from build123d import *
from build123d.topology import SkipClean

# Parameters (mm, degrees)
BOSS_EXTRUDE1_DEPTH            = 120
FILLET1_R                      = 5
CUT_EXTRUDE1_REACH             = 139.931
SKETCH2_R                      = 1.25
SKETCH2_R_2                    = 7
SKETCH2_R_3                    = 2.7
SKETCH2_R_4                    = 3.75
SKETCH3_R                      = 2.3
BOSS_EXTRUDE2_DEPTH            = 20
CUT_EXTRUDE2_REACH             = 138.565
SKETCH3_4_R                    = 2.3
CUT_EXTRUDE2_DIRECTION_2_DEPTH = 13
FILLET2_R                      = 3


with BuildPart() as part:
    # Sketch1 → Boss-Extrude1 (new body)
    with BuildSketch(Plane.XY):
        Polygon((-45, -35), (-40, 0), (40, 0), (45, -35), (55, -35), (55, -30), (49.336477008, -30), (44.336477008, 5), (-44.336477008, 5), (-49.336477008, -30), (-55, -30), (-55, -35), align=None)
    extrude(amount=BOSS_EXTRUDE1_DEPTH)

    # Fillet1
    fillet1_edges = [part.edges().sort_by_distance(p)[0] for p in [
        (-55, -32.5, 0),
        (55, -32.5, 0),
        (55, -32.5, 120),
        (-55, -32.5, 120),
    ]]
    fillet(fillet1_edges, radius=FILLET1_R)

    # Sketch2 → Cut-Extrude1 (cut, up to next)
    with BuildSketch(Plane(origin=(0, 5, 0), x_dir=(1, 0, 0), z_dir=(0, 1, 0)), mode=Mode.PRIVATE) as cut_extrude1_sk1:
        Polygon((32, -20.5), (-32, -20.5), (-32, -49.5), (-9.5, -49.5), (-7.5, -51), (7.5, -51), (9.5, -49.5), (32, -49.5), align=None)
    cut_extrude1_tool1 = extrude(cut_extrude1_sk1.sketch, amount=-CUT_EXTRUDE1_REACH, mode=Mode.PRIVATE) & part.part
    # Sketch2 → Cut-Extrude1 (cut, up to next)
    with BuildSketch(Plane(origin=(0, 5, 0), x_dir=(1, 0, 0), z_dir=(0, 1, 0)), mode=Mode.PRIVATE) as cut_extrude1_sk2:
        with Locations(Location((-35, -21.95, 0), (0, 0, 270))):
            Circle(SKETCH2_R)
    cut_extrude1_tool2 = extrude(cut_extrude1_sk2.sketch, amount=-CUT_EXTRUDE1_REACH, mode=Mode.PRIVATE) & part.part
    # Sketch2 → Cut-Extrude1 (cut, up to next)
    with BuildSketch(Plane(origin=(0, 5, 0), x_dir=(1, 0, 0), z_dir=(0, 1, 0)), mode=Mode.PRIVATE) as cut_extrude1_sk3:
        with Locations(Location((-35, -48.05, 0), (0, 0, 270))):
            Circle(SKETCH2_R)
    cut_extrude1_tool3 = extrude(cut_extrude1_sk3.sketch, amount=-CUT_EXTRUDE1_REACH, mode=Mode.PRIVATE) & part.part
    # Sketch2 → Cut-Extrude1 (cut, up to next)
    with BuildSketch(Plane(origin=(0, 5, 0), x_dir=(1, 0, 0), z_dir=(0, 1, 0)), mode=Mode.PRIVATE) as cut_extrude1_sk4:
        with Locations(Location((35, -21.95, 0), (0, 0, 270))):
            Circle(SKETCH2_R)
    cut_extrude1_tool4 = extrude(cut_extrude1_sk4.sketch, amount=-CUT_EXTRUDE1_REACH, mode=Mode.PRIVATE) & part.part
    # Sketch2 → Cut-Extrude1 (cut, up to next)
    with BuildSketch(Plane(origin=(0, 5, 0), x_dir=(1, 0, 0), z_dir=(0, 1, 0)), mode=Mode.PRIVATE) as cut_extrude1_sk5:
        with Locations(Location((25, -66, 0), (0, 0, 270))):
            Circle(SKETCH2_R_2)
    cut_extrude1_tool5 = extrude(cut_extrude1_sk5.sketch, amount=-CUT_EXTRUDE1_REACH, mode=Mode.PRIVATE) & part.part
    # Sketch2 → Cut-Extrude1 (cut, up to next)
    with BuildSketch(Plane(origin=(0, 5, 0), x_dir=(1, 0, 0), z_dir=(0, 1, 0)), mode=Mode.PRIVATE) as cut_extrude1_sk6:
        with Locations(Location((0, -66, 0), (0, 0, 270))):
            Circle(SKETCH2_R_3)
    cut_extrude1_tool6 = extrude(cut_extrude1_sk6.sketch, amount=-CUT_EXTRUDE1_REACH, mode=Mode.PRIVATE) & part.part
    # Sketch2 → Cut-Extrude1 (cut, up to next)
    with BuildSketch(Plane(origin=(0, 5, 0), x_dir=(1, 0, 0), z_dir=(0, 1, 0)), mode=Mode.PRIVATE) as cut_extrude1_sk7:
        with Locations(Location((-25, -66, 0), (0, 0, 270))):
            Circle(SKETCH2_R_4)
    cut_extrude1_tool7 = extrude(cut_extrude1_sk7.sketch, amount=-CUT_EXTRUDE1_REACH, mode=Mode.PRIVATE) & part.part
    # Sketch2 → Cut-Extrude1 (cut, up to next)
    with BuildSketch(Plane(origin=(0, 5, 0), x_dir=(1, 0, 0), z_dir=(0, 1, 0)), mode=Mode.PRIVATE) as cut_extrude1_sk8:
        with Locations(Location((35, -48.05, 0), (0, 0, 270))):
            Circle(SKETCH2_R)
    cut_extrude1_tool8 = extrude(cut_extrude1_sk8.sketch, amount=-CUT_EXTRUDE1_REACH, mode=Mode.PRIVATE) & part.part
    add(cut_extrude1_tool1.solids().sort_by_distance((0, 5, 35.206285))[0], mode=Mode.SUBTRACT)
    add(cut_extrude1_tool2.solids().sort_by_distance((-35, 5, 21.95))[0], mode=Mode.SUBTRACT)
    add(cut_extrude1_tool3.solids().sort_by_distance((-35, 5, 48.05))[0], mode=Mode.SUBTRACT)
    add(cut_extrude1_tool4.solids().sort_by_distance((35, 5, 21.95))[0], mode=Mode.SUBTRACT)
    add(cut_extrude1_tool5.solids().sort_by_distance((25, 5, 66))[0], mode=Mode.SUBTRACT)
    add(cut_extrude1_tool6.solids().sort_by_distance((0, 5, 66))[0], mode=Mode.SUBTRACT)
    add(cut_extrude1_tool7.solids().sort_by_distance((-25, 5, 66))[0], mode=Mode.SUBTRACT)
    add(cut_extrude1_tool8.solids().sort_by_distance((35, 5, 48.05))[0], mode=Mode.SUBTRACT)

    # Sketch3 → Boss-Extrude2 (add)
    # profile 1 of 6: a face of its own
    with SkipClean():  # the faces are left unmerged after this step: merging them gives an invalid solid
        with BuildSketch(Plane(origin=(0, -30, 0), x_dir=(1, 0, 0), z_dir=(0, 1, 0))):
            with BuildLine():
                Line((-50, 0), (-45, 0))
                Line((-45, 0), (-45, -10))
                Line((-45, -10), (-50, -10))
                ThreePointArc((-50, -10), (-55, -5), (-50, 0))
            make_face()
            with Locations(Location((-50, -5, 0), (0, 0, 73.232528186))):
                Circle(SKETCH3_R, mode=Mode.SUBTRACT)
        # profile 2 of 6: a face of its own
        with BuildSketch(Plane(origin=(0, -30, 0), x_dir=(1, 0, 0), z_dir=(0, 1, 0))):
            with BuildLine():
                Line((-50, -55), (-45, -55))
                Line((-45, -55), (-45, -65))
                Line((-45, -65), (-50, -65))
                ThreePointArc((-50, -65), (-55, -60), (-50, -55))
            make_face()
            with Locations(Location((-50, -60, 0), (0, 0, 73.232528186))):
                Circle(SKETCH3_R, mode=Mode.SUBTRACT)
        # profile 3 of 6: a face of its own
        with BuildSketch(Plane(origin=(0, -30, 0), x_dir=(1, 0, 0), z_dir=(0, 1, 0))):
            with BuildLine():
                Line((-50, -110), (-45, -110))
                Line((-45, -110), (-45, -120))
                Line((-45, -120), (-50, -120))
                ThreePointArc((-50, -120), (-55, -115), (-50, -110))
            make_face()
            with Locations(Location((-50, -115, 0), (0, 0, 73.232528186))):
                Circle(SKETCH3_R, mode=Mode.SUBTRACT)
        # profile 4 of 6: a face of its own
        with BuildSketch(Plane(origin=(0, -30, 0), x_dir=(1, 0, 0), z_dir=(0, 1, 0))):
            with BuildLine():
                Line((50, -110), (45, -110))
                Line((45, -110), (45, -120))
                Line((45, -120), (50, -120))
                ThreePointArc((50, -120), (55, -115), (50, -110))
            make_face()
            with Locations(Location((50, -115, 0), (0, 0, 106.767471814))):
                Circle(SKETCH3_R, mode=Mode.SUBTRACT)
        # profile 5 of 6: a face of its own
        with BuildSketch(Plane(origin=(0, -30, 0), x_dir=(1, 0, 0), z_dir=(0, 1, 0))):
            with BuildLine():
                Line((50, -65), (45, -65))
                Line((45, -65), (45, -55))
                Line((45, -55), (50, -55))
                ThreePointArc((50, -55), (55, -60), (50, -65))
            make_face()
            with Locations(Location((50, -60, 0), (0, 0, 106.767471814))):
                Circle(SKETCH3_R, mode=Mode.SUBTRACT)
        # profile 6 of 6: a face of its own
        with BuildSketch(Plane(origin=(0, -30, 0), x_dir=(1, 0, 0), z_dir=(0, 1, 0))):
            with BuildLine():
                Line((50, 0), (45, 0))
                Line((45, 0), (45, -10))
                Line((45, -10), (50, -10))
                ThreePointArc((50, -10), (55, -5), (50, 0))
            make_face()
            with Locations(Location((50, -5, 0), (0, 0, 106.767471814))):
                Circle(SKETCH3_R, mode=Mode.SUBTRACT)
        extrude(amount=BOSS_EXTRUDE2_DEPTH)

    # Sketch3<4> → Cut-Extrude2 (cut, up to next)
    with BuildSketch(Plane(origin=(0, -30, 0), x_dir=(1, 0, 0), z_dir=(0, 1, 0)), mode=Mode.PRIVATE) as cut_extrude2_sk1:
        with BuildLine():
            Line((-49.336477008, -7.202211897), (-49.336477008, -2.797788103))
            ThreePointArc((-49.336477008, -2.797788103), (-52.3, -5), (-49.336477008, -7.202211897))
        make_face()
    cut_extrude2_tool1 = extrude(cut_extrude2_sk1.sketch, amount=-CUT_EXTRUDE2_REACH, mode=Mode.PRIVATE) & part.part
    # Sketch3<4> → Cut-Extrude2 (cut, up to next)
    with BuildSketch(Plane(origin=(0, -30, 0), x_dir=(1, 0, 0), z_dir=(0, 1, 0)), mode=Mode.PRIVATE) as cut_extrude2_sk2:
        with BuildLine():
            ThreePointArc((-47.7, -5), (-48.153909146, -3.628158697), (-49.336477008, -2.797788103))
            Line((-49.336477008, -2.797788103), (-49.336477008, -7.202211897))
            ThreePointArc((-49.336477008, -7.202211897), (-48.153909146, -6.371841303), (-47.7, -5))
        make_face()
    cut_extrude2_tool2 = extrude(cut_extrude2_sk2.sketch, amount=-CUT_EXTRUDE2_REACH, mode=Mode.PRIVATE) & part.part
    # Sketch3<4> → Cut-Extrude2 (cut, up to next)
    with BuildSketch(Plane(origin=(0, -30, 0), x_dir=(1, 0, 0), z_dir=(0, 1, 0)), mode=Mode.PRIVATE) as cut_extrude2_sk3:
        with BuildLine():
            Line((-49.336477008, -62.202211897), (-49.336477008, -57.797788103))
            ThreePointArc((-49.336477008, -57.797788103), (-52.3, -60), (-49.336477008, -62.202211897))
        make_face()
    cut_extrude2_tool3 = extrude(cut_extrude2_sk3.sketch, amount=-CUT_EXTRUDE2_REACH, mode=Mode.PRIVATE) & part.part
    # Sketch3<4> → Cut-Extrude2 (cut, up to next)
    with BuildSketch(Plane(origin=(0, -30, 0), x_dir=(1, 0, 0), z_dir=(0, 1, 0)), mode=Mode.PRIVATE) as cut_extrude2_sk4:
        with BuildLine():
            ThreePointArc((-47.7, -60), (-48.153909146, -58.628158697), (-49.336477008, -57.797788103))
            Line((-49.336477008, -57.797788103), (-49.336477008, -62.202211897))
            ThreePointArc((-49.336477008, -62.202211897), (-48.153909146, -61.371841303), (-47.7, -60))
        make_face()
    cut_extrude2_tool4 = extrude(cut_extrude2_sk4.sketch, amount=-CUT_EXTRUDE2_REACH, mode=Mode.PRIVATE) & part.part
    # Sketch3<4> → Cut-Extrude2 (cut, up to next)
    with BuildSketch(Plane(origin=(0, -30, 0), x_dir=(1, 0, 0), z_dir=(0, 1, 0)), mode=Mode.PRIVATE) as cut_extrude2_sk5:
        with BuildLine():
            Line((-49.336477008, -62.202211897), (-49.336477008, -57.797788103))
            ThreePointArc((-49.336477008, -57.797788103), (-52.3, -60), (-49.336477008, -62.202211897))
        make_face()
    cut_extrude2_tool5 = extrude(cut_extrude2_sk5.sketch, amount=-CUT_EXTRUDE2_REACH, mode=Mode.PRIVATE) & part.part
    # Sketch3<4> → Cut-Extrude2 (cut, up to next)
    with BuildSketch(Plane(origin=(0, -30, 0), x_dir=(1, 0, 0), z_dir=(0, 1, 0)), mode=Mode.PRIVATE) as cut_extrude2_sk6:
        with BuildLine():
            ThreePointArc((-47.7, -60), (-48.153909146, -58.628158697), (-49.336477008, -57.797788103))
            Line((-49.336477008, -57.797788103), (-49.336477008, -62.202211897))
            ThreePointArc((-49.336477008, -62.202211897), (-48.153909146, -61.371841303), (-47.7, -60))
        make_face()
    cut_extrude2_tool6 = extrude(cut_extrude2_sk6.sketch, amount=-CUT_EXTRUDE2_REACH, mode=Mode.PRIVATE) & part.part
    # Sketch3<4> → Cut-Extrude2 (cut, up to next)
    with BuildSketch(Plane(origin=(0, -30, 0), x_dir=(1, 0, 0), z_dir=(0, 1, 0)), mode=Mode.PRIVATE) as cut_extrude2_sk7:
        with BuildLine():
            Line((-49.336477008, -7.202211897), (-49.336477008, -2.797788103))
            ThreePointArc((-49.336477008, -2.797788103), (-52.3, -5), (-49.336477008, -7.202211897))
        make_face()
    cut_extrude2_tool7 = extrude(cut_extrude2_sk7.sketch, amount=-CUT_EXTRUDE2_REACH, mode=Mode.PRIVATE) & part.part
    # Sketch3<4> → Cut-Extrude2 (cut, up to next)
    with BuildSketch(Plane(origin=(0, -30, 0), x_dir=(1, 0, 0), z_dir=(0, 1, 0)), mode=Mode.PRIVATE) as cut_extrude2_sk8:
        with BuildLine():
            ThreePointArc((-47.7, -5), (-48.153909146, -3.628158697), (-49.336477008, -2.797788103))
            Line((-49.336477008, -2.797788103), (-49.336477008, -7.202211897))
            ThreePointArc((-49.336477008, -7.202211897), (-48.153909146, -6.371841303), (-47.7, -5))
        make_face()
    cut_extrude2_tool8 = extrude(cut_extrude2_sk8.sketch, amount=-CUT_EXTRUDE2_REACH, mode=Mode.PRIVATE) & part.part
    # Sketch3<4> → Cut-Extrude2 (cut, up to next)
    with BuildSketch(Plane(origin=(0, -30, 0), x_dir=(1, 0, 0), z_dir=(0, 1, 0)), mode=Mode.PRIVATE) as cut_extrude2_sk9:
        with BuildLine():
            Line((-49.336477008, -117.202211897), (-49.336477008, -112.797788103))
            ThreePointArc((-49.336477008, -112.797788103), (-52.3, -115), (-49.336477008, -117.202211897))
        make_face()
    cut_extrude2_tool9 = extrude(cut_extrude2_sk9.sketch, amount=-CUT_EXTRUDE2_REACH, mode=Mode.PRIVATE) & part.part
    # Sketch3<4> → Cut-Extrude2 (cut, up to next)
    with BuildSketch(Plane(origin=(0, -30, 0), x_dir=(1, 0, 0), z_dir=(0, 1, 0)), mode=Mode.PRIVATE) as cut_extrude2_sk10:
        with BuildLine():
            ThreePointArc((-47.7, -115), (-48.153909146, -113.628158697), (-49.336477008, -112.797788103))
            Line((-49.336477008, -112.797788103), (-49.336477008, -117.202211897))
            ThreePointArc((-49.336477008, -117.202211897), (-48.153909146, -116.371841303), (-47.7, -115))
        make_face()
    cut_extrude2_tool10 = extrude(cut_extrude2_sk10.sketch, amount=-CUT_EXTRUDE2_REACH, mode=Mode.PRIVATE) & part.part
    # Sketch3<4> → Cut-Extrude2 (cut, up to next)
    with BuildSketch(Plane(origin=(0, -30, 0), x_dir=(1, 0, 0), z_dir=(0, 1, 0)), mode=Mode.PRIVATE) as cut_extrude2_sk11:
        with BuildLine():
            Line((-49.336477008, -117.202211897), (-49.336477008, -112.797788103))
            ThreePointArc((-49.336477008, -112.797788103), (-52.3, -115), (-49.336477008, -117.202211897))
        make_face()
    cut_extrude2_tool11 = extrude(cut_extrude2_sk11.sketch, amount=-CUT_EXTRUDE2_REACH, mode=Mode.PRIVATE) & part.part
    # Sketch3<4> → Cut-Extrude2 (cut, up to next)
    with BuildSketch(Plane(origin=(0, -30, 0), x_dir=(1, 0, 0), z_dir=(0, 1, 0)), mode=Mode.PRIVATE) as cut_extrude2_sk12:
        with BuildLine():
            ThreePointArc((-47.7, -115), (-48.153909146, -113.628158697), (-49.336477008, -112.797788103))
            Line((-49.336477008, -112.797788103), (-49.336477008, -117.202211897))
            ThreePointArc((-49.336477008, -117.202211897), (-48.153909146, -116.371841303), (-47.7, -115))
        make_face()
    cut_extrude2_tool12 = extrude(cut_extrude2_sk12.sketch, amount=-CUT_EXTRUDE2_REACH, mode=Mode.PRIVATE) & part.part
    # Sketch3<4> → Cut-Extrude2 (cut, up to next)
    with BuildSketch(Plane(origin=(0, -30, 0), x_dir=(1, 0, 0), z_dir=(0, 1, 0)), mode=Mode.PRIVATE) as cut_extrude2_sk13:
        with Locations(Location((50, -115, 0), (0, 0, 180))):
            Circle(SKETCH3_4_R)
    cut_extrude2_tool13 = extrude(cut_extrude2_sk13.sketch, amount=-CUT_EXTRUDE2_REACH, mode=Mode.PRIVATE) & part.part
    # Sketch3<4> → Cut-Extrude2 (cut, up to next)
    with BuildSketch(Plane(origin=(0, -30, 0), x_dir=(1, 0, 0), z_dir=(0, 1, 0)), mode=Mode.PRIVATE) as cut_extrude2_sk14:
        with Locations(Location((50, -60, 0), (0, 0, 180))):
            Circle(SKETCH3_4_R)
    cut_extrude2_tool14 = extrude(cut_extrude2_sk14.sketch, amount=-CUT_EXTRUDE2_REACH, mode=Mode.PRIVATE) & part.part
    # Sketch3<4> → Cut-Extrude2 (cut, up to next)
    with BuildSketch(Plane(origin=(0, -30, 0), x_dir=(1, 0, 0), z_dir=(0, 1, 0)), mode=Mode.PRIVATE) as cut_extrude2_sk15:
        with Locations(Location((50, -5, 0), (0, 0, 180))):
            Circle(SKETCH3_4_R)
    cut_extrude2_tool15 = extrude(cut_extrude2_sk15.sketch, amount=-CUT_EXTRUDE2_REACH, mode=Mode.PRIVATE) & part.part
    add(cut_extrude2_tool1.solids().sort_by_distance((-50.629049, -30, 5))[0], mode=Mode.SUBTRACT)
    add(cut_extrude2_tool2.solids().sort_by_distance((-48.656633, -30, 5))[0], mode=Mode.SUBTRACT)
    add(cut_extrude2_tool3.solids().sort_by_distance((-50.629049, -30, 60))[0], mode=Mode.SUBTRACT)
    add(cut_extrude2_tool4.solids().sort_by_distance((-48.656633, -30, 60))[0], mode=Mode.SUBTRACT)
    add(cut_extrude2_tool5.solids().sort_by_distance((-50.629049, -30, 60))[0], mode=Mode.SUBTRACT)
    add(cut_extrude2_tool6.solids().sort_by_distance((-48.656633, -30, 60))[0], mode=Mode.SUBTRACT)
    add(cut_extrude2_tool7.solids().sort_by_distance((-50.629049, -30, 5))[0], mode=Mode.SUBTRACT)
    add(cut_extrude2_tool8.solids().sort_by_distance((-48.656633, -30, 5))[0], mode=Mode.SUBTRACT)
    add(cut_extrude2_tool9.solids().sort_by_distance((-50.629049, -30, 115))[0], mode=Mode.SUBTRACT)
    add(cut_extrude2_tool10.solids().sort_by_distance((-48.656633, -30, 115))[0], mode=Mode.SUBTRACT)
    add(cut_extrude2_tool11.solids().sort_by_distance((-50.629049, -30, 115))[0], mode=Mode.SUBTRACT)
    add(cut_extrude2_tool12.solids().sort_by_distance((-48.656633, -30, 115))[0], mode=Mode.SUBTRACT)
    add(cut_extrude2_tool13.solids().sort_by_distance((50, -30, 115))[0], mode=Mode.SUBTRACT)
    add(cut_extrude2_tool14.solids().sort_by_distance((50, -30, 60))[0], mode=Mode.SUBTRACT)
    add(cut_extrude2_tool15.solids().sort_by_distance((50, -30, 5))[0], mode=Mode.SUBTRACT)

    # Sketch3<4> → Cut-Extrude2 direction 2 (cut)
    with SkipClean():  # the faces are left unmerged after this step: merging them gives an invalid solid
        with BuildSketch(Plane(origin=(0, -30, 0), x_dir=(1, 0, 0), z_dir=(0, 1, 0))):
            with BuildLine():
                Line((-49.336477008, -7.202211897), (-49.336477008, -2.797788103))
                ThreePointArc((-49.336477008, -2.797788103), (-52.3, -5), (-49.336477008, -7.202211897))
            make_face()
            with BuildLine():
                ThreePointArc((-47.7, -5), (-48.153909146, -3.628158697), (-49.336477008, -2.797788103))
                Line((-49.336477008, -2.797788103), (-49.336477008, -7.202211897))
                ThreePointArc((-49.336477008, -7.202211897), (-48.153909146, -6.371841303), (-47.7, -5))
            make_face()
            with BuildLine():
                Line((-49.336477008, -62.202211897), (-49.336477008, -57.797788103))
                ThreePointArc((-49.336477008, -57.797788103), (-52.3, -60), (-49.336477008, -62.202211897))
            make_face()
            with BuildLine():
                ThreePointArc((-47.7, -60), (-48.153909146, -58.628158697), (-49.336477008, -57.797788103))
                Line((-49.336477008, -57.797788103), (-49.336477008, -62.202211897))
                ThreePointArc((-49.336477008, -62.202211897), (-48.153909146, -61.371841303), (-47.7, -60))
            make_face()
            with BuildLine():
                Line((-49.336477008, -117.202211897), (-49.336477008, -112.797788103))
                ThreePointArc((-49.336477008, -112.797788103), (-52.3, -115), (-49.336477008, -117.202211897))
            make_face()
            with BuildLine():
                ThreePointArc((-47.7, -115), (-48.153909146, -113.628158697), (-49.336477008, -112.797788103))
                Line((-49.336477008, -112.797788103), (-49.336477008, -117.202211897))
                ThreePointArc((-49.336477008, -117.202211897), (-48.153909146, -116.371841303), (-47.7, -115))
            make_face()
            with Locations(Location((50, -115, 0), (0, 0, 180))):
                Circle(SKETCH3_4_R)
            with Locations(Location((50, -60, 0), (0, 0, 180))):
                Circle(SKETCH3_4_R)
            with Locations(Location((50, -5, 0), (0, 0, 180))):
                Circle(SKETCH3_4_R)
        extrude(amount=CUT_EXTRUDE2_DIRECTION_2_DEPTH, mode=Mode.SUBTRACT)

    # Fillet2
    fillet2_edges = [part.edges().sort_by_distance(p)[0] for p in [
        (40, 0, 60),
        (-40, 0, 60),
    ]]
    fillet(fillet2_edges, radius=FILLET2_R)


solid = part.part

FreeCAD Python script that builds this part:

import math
import FreeCAD as App
import Part
import Sketcher
from FreeCAD import Vector
Q = App.Units.Quantity


def edges_at(feature, points):
    """Names of the edges that pass closest to the given points."""
    edges = feature.Shape.Edges
    near = lambda p: min(range(len(edges)), key=lambda i: edges[i].distToShape(Part.Vertex(*p))[0])
    return sorted({f"Edge{near(p) + 1}" for p in points})


def add_polygon(sketch, points):
    """Adds a closed chain of lines whose ends are joined by coincident constraints."""
    first, n = sketch.GeometryCount, len(points)
    for a, b in zip(points, points[1:] + points[:1]):
        sketch.addGeometry(Part.LineSegment(App.Vector(*a, 0), App.Vector(*b, 0)), False)
    for i in range(n):
        sketch.addConstraint(Sketcher.Constraint("Coincident", first + i, 2, first + (i + 1) % n, 1))

doc = App.newDocument("Part")
body = doc.addObject("PartDesign::Body", "Body")

sketch1 = body.newObject("Sketcher::SketchObject", "Sketch")
sketch1.AttachmentSupport = (doc.getObject("XY_Plane"), [""])
sketch1.MapMode = "FlatFace"
add_polygon(sketch1, [(-45, -35), (-40, 0), (40, 0), (45, -35), (55, -35), (55, -30), (49, -30), (44, 5), (-44, 5), (-49, -30), (-55, -30), (-55, -35)])
sketch1.addConstraint([
    Sketcher.Constraint("Horizontal", 1),
    Sketcher.Constraint("Horizontal", 3),
    Sketcher.Constraint("Vertical", 4),
    Sketcher.Constraint("Horizontal", 5),
    Sketcher.Constraint("Horizontal", 7),
    Sketcher.Constraint("Horizontal", 9),
    Sketcher.Constraint("Vertical", 10),
    Sketcher.Constraint("Horizontal", 11),
    Sketcher.Constraint("Symmetric", 0, 2, 1, 2, -1, 1),
    Sketcher.Constraint("Symmetric", 5, 2, 8, 2, -2),
    Sketcher.Constraint("Symmetric", 3, 2, 10, 2, -2),
    Sketcher.Constraint("Parallel", 2, 6),
    Sketcher.Constraint("Parallel", 0, 8),
    Sketcher.Constraint("Equal", 3, 11),
    Sketcher.Constraint("Equal", 2, 6),
    Sketcher.Constraint("DistanceX", 1, 1, 1, 2, Q("80 mm")),
    Sketcher.Constraint("DistanceX", 3, 1, 3, 2, Q("10 mm")),
    Sketcher.Constraint("DistanceY", 4, 1, 4, 2, Q("5 mm")),
    Sketcher.Constraint("DistanceX", -1, 1, 2, 2, Q("45 mm")),
    Sketcher.Constraint("DistanceY", 2, 2, -1, 1, Q("35 mm")),
    Sketcher.Constraint("DistanceX", 5, 2, 5, 1, Q("5.663523 mm")),
])
pad1 = body.newObject("PartDesign::Pad", "Pad")
pad1.Profile = sketch1
pad1.Length = 120
doc.recompute()

fillet = body.newObject("PartDesign::Fillet", "Fillet")
fillet.Base = (pad1, edges_at(pad1, [
    (-55, -32.5, 0),
    (55, -32.5, 0),
    (55, -32.5, 120),
    (-55, -32.5, 120),
]))
fillet.Radius = 5

sketch2 = body.newObject("Sketcher::SketchObject", "Sketch001")
sketch2.AttachmentSupport = (doc.getObject("XZ_Plane"), [""])
sketch2.MapMode = "FlatFace"
sketch2.AttachmentOffset = App.Placement(Vector(0, 0, -5), App.Rotation())
add_polygon(sketch2, [(32, 20.5), (-32, 20.5), (-32, 49.5), (-9.5, 49.5), (-7.5, 51), (7.5, 51), (9.5, 49.5), (32, 49.5)])
sketch2.addConstraint([
    Sketcher.Constraint("Horizontal", 0),
    Sketcher.Constraint("Vertical", 1),
    Sketcher.Constraint("Horizontal", 2),
    Sketcher.Constraint("Horizontal", 4),
    Sketcher.Constraint("Horizontal", 6),
    Sketcher.Constraint("Vertical", 7),
    Sketcher.Constraint("Symmetric", 2, 2, 5, 2, -2),
    Sketcher.Constraint("Equal", 2, 6),
    Sketcher.Constraint("Equal", 3, 5),
    Sketcher.Constraint("DistanceX", 0, 2, 0, 1, Q("64 mm")),
    Sketcher.Constraint("DistanceX", 4, 1, 4, 2, Q("15 mm")),
    Sketcher.Constraint("DistanceY", 1, 1, 1, 2, Q("29 mm")),
    Sketcher.Constraint("DistanceX", 2, 1, 2, 2, Q("22.5 mm")),
    Sketcher.Constraint("DistanceY", -1, 1, 3, 2, Q("51 mm")),
    Sketcher.Constraint("Distance", 3, Q("2.5 mm")),
])
pocket1 = body.newObject("PartDesign::Pocket", "Pocket")
pocket1.Profile = sketch2
pocket1.Type = "UpToFirst"
pocket1.Reversed = True

sketch3 = body.newObject("Sketcher::SketchObject", "Sketch002")
sketch3.AttachmentSupport = (doc.getObject("XZ_Plane"), [""])
sketch3.MapMode = "FlatFace"
sketch3.AttachmentOffset = App.Placement(Vector(0, 0, -5), App.Rotation())
sketch3.addGeometry(Part.Circle(Vector(-35, 21.9, 0), Vector(0, 0, 1), 1.2), False)
sketch3.addConstraint([
    Sketcher.Constraint("Diameter", 0, Q("2.5 mm")),
    Sketcher.Constraint("DistanceX", 0, 3, -1, 1, Q("35 mm")),
    Sketcher.Constraint("DistanceY", -1, 1, 0, 3, Q("21.95 mm")),
])
pocket2 = body.newObject("PartDesign::Pocket", "Pocket001")
pocket2.Profile = sketch3
pocket2.Type = "UpToFirst"
pocket2.Reversed = True

sketch4 = body.newObject("Sketcher::SketchObject", "Sketch003")
sketch4.AttachmentSupport = (doc.getObject("XZ_Plane"), [""])
sketch4.MapMode = "FlatFace"
sketch4.AttachmentOffset = App.Placement(Vector(0, 0, -5), App.Rotation())
sketch4.addGeometry(Part.Circle(Vector(-35, 48, 0), Vector(0, 0, 1), 1.2), False)
sketch4.addConstraint([
    Sketcher.Constraint("Diameter", 0, Q("2.5 mm")),
    Sketcher.Constraint("DistanceX", 0, 3, -1, 1, Q("35 mm")),
    Sketcher.Constraint("DistanceY", -1, 1, 0, 3, Q("48.05 mm")),
])
pocket3 = body.newObject("PartDesign::Pocket", "Pocket002")
pocket3.Profile = sketch4
pocket3.Type = "UpToFirst"
pocket3.Reversed = True

sketch5 = body.newObject("Sketcher::SketchObject", "Sketch004")
sketch5.AttachmentSupport = (doc.getObject("XZ_Plane"), [""])
sketch5.MapMode = "FlatFace"
sketch5.AttachmentOffset = App.Placement(Vector(0, 0, -5), App.Rotation())
sketch5.addGeometry(Part.Circle(Vector(35, 21.9, 0), Vector(0, 0, 1), 1.2), False)
sketch5.addConstraint([
    Sketcher.Constraint("Diameter", 0, Q("2.5 mm")),
    Sketcher.Constraint("DistanceX", -1, 1, 0, 3, Q("35 mm")),
    Sketcher.Constraint("DistanceY", -1, 1, 0, 3, Q("21.95 mm")),
])
pocket4 = body.newObject("PartDesign::Pocket", "Pocket003")
pocket4.Profile = sketch5
pocket4.Type = "UpToFirst"
pocket4.Reversed = True

sketch6 = body.newObject("Sketcher::SketchObject", "Sketch005")
sketch6.AttachmentSupport = (doc.getObject("XZ_Plane"), [""])
sketch6.MapMode = "FlatFace"
sketch6.AttachmentOffset = App.Placement(Vector(0, 0, -5), App.Rotation())
sketch6.addGeometry(Part.Circle(Vector(25, 66, 0), Vector(0, 0, 1), 7), False)
sketch6.addConstraint([
    Sketcher.Constraint("Diameter", 0, Q("14 mm")),
    Sketcher.Constraint("DistanceX", -1, 1, 0, 3, Q("25 mm")),
    Sketcher.Constraint("DistanceY", -1, 1, 0, 3, Q("66 mm")),
])
pocket5 = body.newObject("PartDesign::Pocket", "Pocket004")
pocket5.Profile = sketch6
pocket5.Type = "UpToFirst"
pocket5.Reversed = True

sketch7 = body.newObject("Sketcher::SketchObject", "Sketch006")
sketch7.AttachmentSupport = (doc.getObject("XZ_Plane"), [""])
sketch7.MapMode = "FlatFace"
sketch7.AttachmentOffset = App.Placement(Vector(0, 0, -5), App.Rotation())
sketch7.addGeometry(Part.Circle(Vector(0, 66, 0), Vector(0, 0, 1), 2.7), False)
sketch7.addConstraint([
    Sketcher.Constraint("PointOnObject", 0, 3, -2),
    Sketcher.Constraint("Diameter", 0, Q("5.4 mm")),
    Sketcher.Constraint("DistanceY", -1, 1, 0, 3, Q("66 mm")),
])
pocket6 = body.newObject("PartDesign::Pocket", "Pocket005")
pocket6.Profile = sketch7
pocket6.Type = "UpToFirst"
pocket6.Reversed = True

sketch8 = body.newObject("Sketcher::SketchObject", "Sketch007")
sketch8.AttachmentSupport = (doc.getObject("XZ_Plane"), [""])
sketch8.MapMode = "FlatFace"
sketch8.AttachmentOffset = App.Placement(Vector(0, 0, -5), App.Rotation())
sketch8.addGeometry(Part.Circle(Vector(-25, 66, 0), Vector(0, 0, 1), 3.8), False)
sketch8.addConstraint([
    Sketcher.Constraint("Diameter", 0, Q("7.5 mm")),
    Sketcher.Constraint("DistanceX", 0, 3, -1, 1, Q("25 mm")),
    Sketcher.Constraint("DistanceY", -1, 1, 0, 3, Q("66 mm")),
])
pocket7 = body.newObject("PartDesign::Pocket", "Pocket006")
pocket7.Profile = sketch8
pocket7.Type = "UpToFirst"
pocket7.Reversed = True

sketch9 = body.newObject("Sketcher::SketchObject", "Sketch008")
sketch9.AttachmentSupport = (doc.getObject("XZ_Plane"), [""])
sketch9.MapMode = "FlatFace"
sketch9.AttachmentOffset = App.Placement(Vector(0, 0, -5), App.Rotation())
sketch9.addGeometry(Part.Circle(Vector(35, 48, 0), Vector(0, 0, 1), 1.2), False)
sketch9.addConstraint([
    Sketcher.Constraint("Diameter", 0, Q("2.5 mm")),
    Sketcher.Constraint("DistanceX", -1, 1, 0, 3, Q("35 mm")),
    Sketcher.Constraint("DistanceY", -1, 1, 0, 3, Q("48.05 mm")),
])
pocket8 = body.newObject("PartDesign::Pocket", "Pocket007")
pocket8.Profile = sketch9
pocket8.Type = "UpToFirst"
pocket8.Reversed = True

sketch10 = body.newObject("Sketcher::SketchObject", "Sketch009")
sketch10.AttachmentSupport = (doc.getObject("XZ_Plane"), [""])
sketch10.MapMode = "FlatFace"
sketch10.AttachmentOffset = App.Placement(Vector(0, 0, 30), App.Rotation())
sketch10.addGeometry([
    Part.LineSegment(Vector(-45, 0, 0), Vector(-50, 0, 0)),
    Part.ArcOfCircle(Part.Circle(Vector(-50, 5, 0), Vector(0, 0, 1), 5), math.radians(90), math.radians(270)),
    Part.LineSegment(Vector(-50, 10, 0), Vector(-45, 10, 0)),
    Part.LineSegment(Vector(-45, 10, 0), Vector(-45, 0, 0)),
    Part.Circle(Vector(-50, 5, 0), Vector(0, 0, 1), 2.3),
    Part.LineSegment(Vector(-45, 55, 0), Vector(-50, 55, 0)),
    Part.ArcOfCircle(Part.Circle(Vector(-50, 60, 0), Vector(0, 0, 1), 5), math.radians(90), math.radians(270)),
    Part.LineSegment(Vector(-50, 65, 0), Vector(-45, 65, 0)),
    Part.LineSegment(Vector(-45, 65, 0), Vector(-45, 55, 0)),
    Part.Circle(Vector(-50, 60, 0), Vector(0, 0, 1), 2.3),
    Part.LineSegment(Vector(-45, 110, 0), Vector(-50, 110, 0)),
    Part.ArcOfCircle(Part.Circle(Vector(-50, 115, 0), Vector(0, 0, 1), 5), math.radians(90), math.radians(270)),
    Part.LineSegment(Vector(-50, 120, 0), Vector(-45, 120, 0)),
    Part.LineSegment(Vector(-45, 120, 0), Vector(-45, 110, 0)),
    Part.Circle(Vector(-50, 115, 0), Vector(0, 0, 1), 2.3),
    Part.LineSegment(Vector(50, 110, 0), Vector(45, 110, 0)),
    Part.LineSegment(Vector(45, 110, 0), Vector(45, 120, 0)),
    Part.LineSegment(Vector(45, 120, 0), Vector(50, 120, 0)),
    Part.ArcOfCircle(Part.Circle(Vector(50, 115, 0), Vector(0, 0, 1), 5), math.radians(-90), math.radians(90)),
    Part.Circle(Vector(50, 115, 0), Vector(0, 0, 1), 2.3),
    Part.LineSegment(Vector(45, 65, 0), Vector(50, 65, 0)),
    Part.ArcOfCircle(Part.Circle(Vector(50, 60, 0), Vector(0, 0, 1), 5), math.radians(-90), math.radians(90)),
    Part.LineSegment(Vector(50, 55, 0), Vector(45, 55, 0)),
    Part.LineSegment(Vector(45, 55, 0), Vector(45, 65, 0)),
    Part.Circle(Vector(50, 60, 0), Vector(0, 0, 1), 2.3),
    Part.LineSegment(Vector(50, 0, 0), Vector(45, 0, 0)),
    Part.LineSegment(Vector(45, 0, 0), Vector(45, 10, 0)),
    Part.LineSegment(Vector(45, 10, 0), Vector(50, 10, 0)),
    Part.ArcOfCircle(Part.Circle(Vector(50, 5, 0), Vector(0, 0, 1), 5), math.radians(-90), math.radians(90)),
    Part.Circle(Vector(50, 5, 0), Vector(0, 0, 1), 2.3),
], False)
sketch10.addConstraint([
    Sketcher.Constraint("Tangent", 0, 2, 1, 2),
    Sketcher.Constraint("Tangent", 1, 1, 2, 1),
    Sketcher.Constraint("Coincident", 2, 2, 3, 1),
    Sketcher.Constraint("Coincident", 3, 2, 0, 1),
    Sketcher.Constraint("Tangent", 5, 2, 6, 2),
    Sketcher.Constraint("Tangent", 6, 1, 7, 1),
    Sketcher.Constraint("Coincident", 7, 2, 8, 1),
    Sketcher.Constraint("Coincident", 8, 2, 5, 1),
    Sketcher.Constraint("Tangent", 10, 2, 11, 2),
    Sketcher.Constraint("Tangent", 11, 1, 12, 1),
    Sketcher.Constraint("Coincident", 12, 2, 13, 1),
    Sketcher.Constraint("Coincident", 13, 2, 10, 1),
    Sketcher.Constraint("Coincident", 15, 2, 16, 1),
    Sketcher.Constraint("Coincident", 16, 2, 17, 1),
    Sketcher.Constraint("Tangent", 17, 2, 18, 2),
    Sketcher.Constraint("Tangent", 18, 1, 15, 1),
    Sketcher.Constraint("Tangent", 20, 2, 21, 2),
    Sketcher.Constraint("Tangent", 21, 1, 22, 1),
    Sketcher.Constraint("Coincident", 22, 2, 23, 1),
    Sketcher.Constraint("Coincident", 23, 2, 20, 1),
    Sketcher.Constraint("Coincident", 25, 2, 26, 1),
    Sketcher.Constraint("Coincident", 26, 2, 27, 1),
    Sketcher.Constraint("Tangent", 27, 2, 28, 2),
    Sketcher.Constraint("Tangent", 28, 1, 25, 1),
    Sketcher.Constraint("Horizontal", 0),
    Sketcher.Constraint("Horizontal", 2),
    Sketcher.Constraint("Vertical", 3),
    Sketcher.Constraint("Horizontal", 5),
    Sketcher.Constraint("Horizontal", 7),
    Sketcher.Constraint("Vertical", 8),
    Sketcher.Constraint("Horizontal", 10),
    Sketcher.Constraint("Horizontal", 12),
    Sketcher.Constraint("Vertical", 13),
    Sketcher.Constraint("Horizontal", 15),
    Sketcher.Constraint("Vertical", 16),
    Sketcher.Constraint("Horizontal", 17),
    Sketcher.Constraint("Horizontal", 20),
    Sketcher.Constraint("Horizontal", 22),
    Sketcher.Constraint("Vertical", 23),
    Sketcher.Constraint("Horizontal", 25),
    Sketcher.Constraint("Vertical", 26),
    Sketcher.Constraint("Horizontal", 27),
    Sketcher.Constraint("Coincident", 4, 3, 1, 3),
    Sketcher.Constraint("Coincident", 9, 3, 6, 3),
    Sketcher.Constraint("Coincident", 14, 3, 11, 3),
    Sketcher.Constraint("Coincident", 19, 3, 18, 3),
    Sketcher.Constraint("Coincident", 24, 3, 21, 3),
    Sketcher.Constraint("Coincident", 29, 3, 28, 3),
    Sketcher.Constraint("Equal", 1, 6),
    Sketcher.Constraint("Equal", 4, 9),
    Sketcher.Constraint("Equal", 6, 11),
    Sketcher.Constraint("Equal", 9, 14),
    Sketcher.Constraint("Equal", 11, 18),
    Sketcher.Constraint("Equal", 14, 19),
    Sketcher.Constraint("Equal", 18, 21),
    Sketcher.Constraint("Equal", 19, 24),
    Sketcher.Constraint("Equal", 21, 28),
    Sketcher.Constraint("Equal", 24, 29),
    Sketcher.Constraint("Symmetric", 3, 2, 25, 2, -1, 1),
    Sketcher.Constraint("Symmetric", 11, 3, 18, 3, -2),
    Sketcher.Constraint("Symmetric", 6, 3, 21, 3, -2),
    Sketcher.Constraint("Symmetric", 1, 3, 28, 3, -2),
    Sketcher.Constraint("Vertical", 4, 3, 6, 3),
    Sketcher.Constraint("Vertical", 9, 3, 11, 3),
    Sketcher.Constraint("Vertical", 3, 2, 7, 2),
    Sketcher.Constraint("Vertical", 8, 2, 12, 2),
    Sketcher.Constraint("Vertical", 16, 2, 22, 2),
    Sketcher.Constraint("Vertical", 23, 2, 25, 2),
    Sketcher.Constraint("Radius", 1, Q("5 mm")),
    Sketcher.Constraint("Diameter", 4, Q("4.6 mm")),
    Sketcher.Constraint("DistanceX", 0, 2, 0, 1, Q("5 mm")),
    Sketcher.Constraint("DistanceX", 1, 3, -1, 1, Q("50 mm")),
    Sketcher.Constraint("DistanceY", -1, 1, 6, 3, Q("60 mm")),
    Sketcher.Constraint("DistanceY", -1, 1, 11, 3, Q("115 mm")),
])
pad2 = body.newObject("PartDesign::Pad", "Pad001")
pad2.Profile = sketch10
pad2.Length = 20
pad2.Reversed = True

sketch11 = body.newObject("Sketcher::SketchObject", "Sketch010")
sketch11.AttachmentSupport = (doc.getObject("XZ_Plane"), [""])
sketch11.MapMode = "FlatFace"
sketch11.AttachmentOffset = App.Placement(Vector(0, 0, 30), App.Rotation())
sketch11.addGeometry([
    Part.LineSegment(Vector(-49.3, 7.2, 0), Vector(-49.3, 2.8, 0)),
    Part.ArcOfCircle(Part.Circle(Vector(-50, 5, 0), Vector(0, 0, 1), 2.3), math.radians(73), math.radians(287)),
], False)
sketch11.addConstraint([
    Sketcher.Constraint("Coincident", 0, 1, 1, 1),
    Sketcher.Constraint("Coincident", 1, 2, 0, 2),
    Sketcher.Constraint("Vertical", 0),
    Sketcher.Constraint("Radius", 1, Q("2.3 mm")),
    Sketcher.Constraint("DistanceX", 1, 3, -1, 1, Q("50 mm")),
    Sketcher.Constraint("DistanceY", -1, 1, 1, 3, Q("5 mm")),
    Sketcher.Constraint("DistanceY", 0, 2, 0, 1, Q("4.404424 mm")),
])
pocket9 = body.newObject("PartDesign::Pocket", "Pocket008")
pocket9.Profile = sketch11
pocket9.Type = "UpToFirst"
pocket9.Reversed = True

sketch12 = body.newObject("Sketcher::SketchObject", "Sketch011")
sketch12.AttachmentSupport = (doc.getObject("XZ_Plane"), [""])
sketch12.MapMode = "FlatFace"
sketch12.AttachmentOffset = App.Placement(Vector(0, 0, 30), App.Rotation())
sketch12.addGeometry([
    Part.ArcOfCircle(Part.Circle(Vector(-50, 5, 0), Vector(0, 0, 1), 2.3), math.radians(-73), math.radians(0)),
    Part.LineSegment(Vector(-49.3, 2.8, 0), Vector(-49.3, 7.2, 0)),
    Part.ArcOfCircle(Part.Circle(Vector(-50, 5, 0), Vector(0, 0, 1), 2.3), math.radians(0), math.radians(73)),
], False)
sketch12.addConstraint([
    Sketcher.Constraint("Coincident", 0, 1, 1, 1),
    Sketcher.Constraint("Coincident", 1, 2, 2, 2),
    Sketcher.Constraint("Tangent", 2, 1, 0, 2),
    Sketcher.Constraint("Vertical", 1),
    Sketcher.Constraint("Equal", 0, 2),
    Sketcher.Constraint("Horizontal", 0, 3, 2, 1),
    Sketcher.Constraint("Radius", 0, Q("2.3 mm")),
    Sketcher.Constraint("DistanceX", 0, 3, -1, 1, Q("50 mm")),
    Sketcher.Constraint("DistanceY", -1, 1, 0, 3, Q("5 mm")),
    Sketcher.Constraint("DistanceY", 1, 1, 1, 2, Q("4.404424 mm")),
])
pocket10 = body.newObject("PartDesign::Pocket", "Pocket009")
pocket10.Profile = sketch12
pocket10.Type = "UpToFirst"
pocket10.Reversed = True

sketch13 = body.newObject("Sketcher::SketchObject", "Sketch012")
sketch13.AttachmentSupport = (doc.getObject("XZ_Plane"), [""])
sketch13.MapMode = "FlatFace"
sketch13.AttachmentOffset = App.Placement(Vector(0, 0, 30), App.Rotation())
sketch13.addGeometry([
    Part.LineSegment(Vector(-49.3, 62.2, 0), Vector(-49.3, 57.8, 0)),
    Part.ArcOfCircle(Part.Circle(Vector(-50, 60, 0), Vector(0, 0, 1), 2.3), math.radians(73), math.radians(287)),
], False)
sketch13.addConstraint([
    Sketcher.Constraint("Coincident", 0, 1, 1, 1),
    Sketcher.Constraint("Coincident", 1, 2, 0, 2),
    Sketcher.Constraint("Vertical", 0),
    Sketcher.Constraint("Radius", 1, Q("2.3 mm")),
    Sketcher.Constraint("DistanceX", 1, 3, -1, 1, Q("50 mm")),
    Sketcher.Constraint("DistanceY", -1, 1, 1, 3, Q("60 mm")),
    Sketcher.Constraint("DistanceY", 0, 2, 0, 1, Q("4.404424 mm")),
])
pocket11 = body.newObject("PartDesign::Pocket", "Pocket010")
pocket11.Profile = sketch13
pocket11.Type = "UpToFirst"
pocket11.Reversed = True

sketch14 = body.newObject("Sketcher::SketchObject", "Sketch013")
sketch14.AttachmentSupport = (doc.getObject("XZ_Plane"), [""])
sketch14.MapMode = "FlatFace"
sketch14.AttachmentOffset = App.Placement(Vector(0, 0, 30), App.Rotation())
sketch14.addGeometry([
    Part.ArcOfCircle(Part.Circle(Vector(-50, 60, 0), Vector(0, 0, 1), 2.3), math.radians(-73), math.radians(0)),
    Part.LineSegment(Vector(-49.3, 57.8, 0), Vector(-49.3, 62.2, 0)),
    Part.ArcOfCircle(Part.Circle(Vector(-50, 60, 0), Vector(0, 0, 1), 2.3), math.radians(0), math.radians(73)),
], False)
sketch14.addConstraint([
    Sketcher.Constraint("Coincident", 0, 1, 1, 1),
    Sketcher.Constraint("Coincident", 1, 2, 2, 2),
    Sketcher.Constraint("Tangent", 2, 1, 0, 2),
    Sketcher.Constraint("Vertical", 1),
    Sketcher.Constraint("Equal", 0, 2),
    Sketcher.Constraint("Horizontal", 0, 3, 2, 1),
    Sketcher.Constraint("Radius", 0, Q("2.3 mm")),
    Sketcher.Constraint("DistanceX", 0, 3, -1, 1, Q("50 mm")),
    Sketcher.Constraint("DistanceY", -1, 1, 0, 3, Q("60 mm")),
    Sketcher.Constraint("DistanceY", 1, 1, 1, 2, Q("4.404424 mm")),
])
pocket12 = body.newObject("PartDesign::Pocket", "Pocket011")
pocket12.Profile = sketch14
pocket12.Type = "UpToFirst"
pocket12.Reversed = True

sketch15 = body.newObject("Sketcher::SketchObject", "Sketch014")
sketch15.AttachmentSupport = (doc.getObject("XZ_Plane"), [""])
sketch15.MapMode = "FlatFace"
sketch15.AttachmentOffset = App.Placement(Vector(0, 0, 30), App.Rotation())
sketch15.addGeometry([
    Part.LineSegment(Vector(-49.3, 62.2, 0), Vector(-49.3, 57.8, 0)),
    Part.ArcOfCircle(Part.Circle(Vector(-50, 60, 0), Vector(0, 0, 1), 2.3), math.radians(73), math.radians(287)),
], False)
sketch15.addConstraint([
    Sketcher.Constraint("Coincident", 0, 1, 1, 1),
    Sketcher.Constraint("Coincident", 1, 2, 0, 2),
    Sketcher.Constraint("Vertical", 0),
    Sketcher.Constraint("Radius", 1, Q("2.3 mm")),
    Sketcher.Constraint("DistanceX", 1, 3, -1, 1, Q("50 mm")),
    Sketcher.Constraint("DistanceY", -1, 1, 1, 3, Q("60 mm")),
    Sketcher.Constraint("DistanceY", 0, 2, 0, 1, Q("4.404424 mm")),
])
pocket13 = body.newObject("PartDesign::Pocket", "Pocket012")
pocket13.Profile = sketch15
pocket13.Length = 5
pocket13.Reversed = True

sketch16 = body.newObject("Sketcher::SketchObject", "Sketch015")
sketch16.AttachmentSupport = (doc.getObject("XZ_Plane"), [""])
sketch16.MapMode = "FlatFace"
sketch16.AttachmentOffset = App.Placement(Vector(0, 0, 30), App.Rotation())
sketch16.addGeometry([
    Part.ArcOfCircle(Part.Circle(Vector(-50, 60, 0), Vector(0, 0, 1), 2.3), math.radians(-73), math.radians(0)),
    Part.LineSegment(Vector(-49.3, 57.8, 0), Vector(-49.3, 62.2, 0)),
    Part.ArcOfCircle(Part.Circle(Vector(-50, 60, 0), Vector(0, 0, 1), 2.3), math.radians(0), math.radians(73)),
], False)
sketch16.addConstraint([
    Sketcher.Constraint("Coincident", 0, 1, 1, 1),
    Sketcher.Constraint("Coincident", 1, 2, 2, 2),
    Sketcher.Constraint("Tangent", 2, 1, 0, 2),
    Sketcher.Constraint("Vertical", 1),
    Sketcher.Constraint("Equal", 0, 2),
    Sketcher.Constraint("Horizontal", 0, 3, 2, 1),
    Sketcher.Constraint("Radius", 0, Q("2.3 mm")),
    Sketcher.Constraint("DistanceX", 0, 3, -1, 1, Q("50 mm")),
    Sketcher.Constraint("DistanceY", -1, 1, 0, 3, Q("60 mm")),
    Sketcher.Constraint("DistanceY", 1, 1, 1, 2, Q("4.404424 mm")),
])
pocket14 = body.newObject("PartDesign::Pocket", "Pocket013")
pocket14.Profile = sketch16
pocket14.Length = 5
pocket14.Reversed = True

sketch17 = body.newObject("Sketcher::SketchObject", "Sketch016")
sketch17.AttachmentSupport = (doc.getObject("XZ_Plane"), [""])
sketch17.MapMode = "FlatFace"
sketch17.AttachmentOffset = App.Placement(Vector(0, 0, 30), App.Rotation())
sketch17.addGeometry([
    Part.LineSegment(Vector(-49.3, 7.2, 0), Vector(-49.3, 2.8, 0)),
    Part.ArcOfCircle(Part.Circle(Vector(-50, 5, 0), Vector(0, 0, 1), 2.3), math.radians(73), math.radians(287)),
], False)
sketch17.addConstraint([
    Sketcher.Constraint("Coincident", 0, 1, 1, 1),
    Sketcher.Constraint("Coincident", 1, 2, 0, 2),
    Sketcher.Constraint("Vertical", 0),
    Sketcher.Constraint("Radius", 1, Q("2.3 mm")),
    Sketcher.Constraint("DistanceX", 1, 3, -1, 1, Q("50 mm")),
    Sketcher.Constraint("DistanceY", -1, 1, 1, 3, Q("5 mm")),
    Sketcher.Constraint("DistanceY", 0, 2, 0, 1, Q("4.404424 mm")),
])
pocket15 = body.newObject("PartDesign::Pocket", "Pocket014")
pocket15.Profile = sketch17
pocket15.Length = 5
pocket15.Reversed = True

sketch18 = body.newObject("Sketcher::SketchObject", "Sketch017")
sketch18.AttachmentSupport = (doc.getObject("XZ_Plane"), [""])
sketch18.MapMode = "FlatFace"
sketch18.AttachmentOffset = App.Placement(Vector(0, 0, 30), App.Rotation())
sketch18.addGeometry([
    Part.ArcOfCircle(Part.Circle(Vector(-50, 5, 0), Vector(0, 0, 1), 2.3), math.radians(-73), math.radians(0)),
    Part.LineSegment(Vector(-49.3, 2.8, 0), Vector(-49.3, 7.2, 0)),
    Part.ArcOfCircle(Part.Circle(Vector(-50, 5, 0), Vector(0, 0, 1), 2.3), math.radians(0), math.radians(73)),
], False)
sketch18.addConstraint([
    Sketcher.Constraint("Coincident", 0, 1, 1, 1),
    Sketcher.Constraint("Coincident", 1, 2, 2, 2),
    Sketcher.Constraint("Tangent", 2, 1, 0, 2),
    Sketcher.Constraint("Vertical", 1),
    Sketcher.Constraint("Equal", 0, 2),
    Sketcher.Constraint("Horizontal", 0, 3, 2, 1),
    Sketcher.Constraint("Radius", 0, Q("2.3 mm")),
    Sketcher.Constraint("DistanceX", 0, 3, -1, 1, Q("50 mm")),
    Sketcher.Constraint("DistanceY", -1, 1, 0, 3, Q("5 mm")),
    Sketcher.Constraint("DistanceY", 1, 1, 1, 2, Q("4.404424 mm")),
])
pocket16 = body.newObject("PartDesign::Pocket", "Pocket015")
pocket16.Profile = sketch18
pocket16.Length = 5
pocket16.Reversed = True

sketch19 = body.newObject("Sketcher::SketchObject", "Sketch018")
sketch19.AttachmentSupport = (doc.getObject("XZ_Plane"), [""])
sketch19.MapMode = "FlatFace"
sketch19.AttachmentOffset = App.Placement(Vector(0, 0, 30), App.Rotation())
sketch19.addGeometry([
    Part.LineSegment(Vector(-49.3, 117.2, 0), Vector(-49.3, 112.8, 0)),
    Part.ArcOfCircle(Part.Circle(Vector(-50, 115, 0), Vector(0, 0, 1), 2.3), math.radians(73), math.radians(287)),
], False)
sketch19.addConstraint([
    Sketcher.Constraint("Coincident", 0, 1, 1, 1),
    Sketcher.Constraint("Coincident", 1, 2, 0, 2),
    Sketcher.Constraint("Vertical", 0),
    Sketcher.Constraint("Radius", 1, Q("2.3 mm")),
    Sketcher.Constraint("DistanceX", 1, 3, -1, 1, Q("50 mm")),
    Sketcher.Constraint("DistanceY", -1, 1, 1, 3, Q("115 mm")),
    Sketcher.Constraint("DistanceY", 0, 2, 0, 1, Q("4.404424 mm")),
])
pocket17 = body.newObject("PartDesign::Pocket", "Pocket016")
pocket17.Profile = sketch19
pocket17.Type = "UpToFirst"
pocket17.Reversed = True

sketch20 = body.newObject("Sketcher::SketchObject", "Sketch019")
sketch20.AttachmentSupport = (doc.getObject("XZ_Plane"), [""])
sketch20.MapMode = "FlatFace"
sketch20.AttachmentOffset = App.Placement(Vector(0, 0, 30), App.Rotation())
sketch20.addGeometry([
    Part.ArcOfCircle(Part.Circle(Vector(-50, 115, 0), Vector(0, 0, 1), 2.3), math.radians(-73), math.radians(0)),
    Part.LineSegment(Vector(-49.3, 112.8, 0), Vector(-49.3, 117.2, 0)),
    Part.ArcOfCircle(Part.Circle(Vector(-50, 115, 0), Vector(0, 0, 1), 2.3), math.radians(0), math.radians(73)),
], False)
sketch20.addConstraint([
    Sketcher.Constraint("Coincident", 0, 1, 1, 1),
    Sketcher.Constraint("Coincident", 1, 2, 2, 2),
    Sketcher.Constraint("Tangent", 2, 1, 0, 2),
    Sketcher.Constraint("Vertical", 1),
    Sketcher.Constraint("Equal", 0, 2),
    Sketcher.Constraint("Horizontal", 0, 3, 2, 1),
    Sketcher.Constraint("Radius", 0, Q("2.3 mm")),
    Sketcher.Constraint("DistanceX", 0, 3, -1, 1, Q("50 mm")),
    Sketcher.Constraint("DistanceY", -1, 1, 0, 3, Q("115 mm")),
    Sketcher.Constraint("DistanceY", 1, 1, 1, 2, Q("4.404424 mm")),
])
pocket18 = body.newObject("PartDesign::Pocket", "Pocket017")
pocket18.Profile = sketch20
pocket18.Type = "UpToFirst"
pocket18.Reversed = True

sketch21 = body.newObject("Sketcher::SketchObject", "Sketch020")
sketch21.AttachmentSupport = (doc.getObject("XZ_Plane"), [""])
sketch21.MapMode = "FlatFace"
sketch21.AttachmentOffset = App.Placement(Vector(0, 0, 30), App.Rotation())
sketch21.addGeometry([
    Part.LineSegment(Vector(-49.3, 117.2, 0), Vector(-49.3, 112.8, 0)),
    Part.ArcOfCircle(Part.Circle(Vector(-50, 115, 0), Vector(0, 0, 1), 2.3), math.radians(73), math.radians(287)),
], False)
sketch21.addConstraint([
    Sketcher.Constraint("Coincident", 0, 1, 1, 1),
    Sketcher.Constraint("Coincident", 1, 2, 0, 2),
    Sketcher.Constraint("Vertical", 0),
    Sketcher.Constraint("Radius", 1, Q("2.3 mm")),
    Sketcher.Constraint("DistanceX", 1, 3, -1, 1, Q("50 mm")),
    Sketcher.Constraint("DistanceY", -1, 1, 1, 3, Q("115 mm")),
    Sketcher.Constraint("DistanceY", 0, 2, 0, 1, Q("4.404424 mm")),
])
pocket19 = body.newObject("PartDesign::Pocket", "Pocket018")
pocket19.Profile = sketch21
pocket19.Length = 5
pocket19.Reversed = True

sketch22 = body.newObject("Sketcher::SketchObject", "Sketch021")
sketch22.AttachmentSupport = (doc.getObject("XZ_Plane"), [""])
sketch22.MapMode = "FlatFace"
sketch22.AttachmentOffset = App.Placement(Vector(0, 0, 30), App.Rotation())
sketch22.addGeometry([
    Part.ArcOfCircle(Part.Circle(Vector(-50, 115, 0), Vector(0, 0, 1), 2.3), math.radians(-73), math.radians(0)),
    Part.LineSegment(Vector(-49.3, 112.8, 0), Vector(-49.3, 117.2, 0)),
    Part.ArcOfCircle(Part.Circle(Vector(-50, 115, 0), Vector(0, 0, 1), 2.3), math.radians(0), math.radians(73)),
], False)
sketch22.addConstraint([
    Sketcher.Constraint("Coincident", 0, 1, 1, 1),
    Sketcher.Constraint("Coincident", 1, 2, 2, 2),
    Sketcher.Constraint("Tangent", 2, 1, 0, 2),
    Sketcher.Constraint("Vertical", 1),
    Sketcher.Constraint("Equal", 0, 2),
    Sketcher.Constraint("Horizontal", 0, 3, 2, 1),
    Sketcher.Constraint("Radius", 0, Q("2.3 mm")),
    Sketcher.Constraint("DistanceX", 0, 3, -1, 1, Q("50 mm")),
    Sketcher.Constraint("DistanceY", -1, 1, 0, 3, Q("115 mm")),
    Sketcher.Constraint("DistanceY", 1, 1, 1, 2, Q("4.404424 mm")),
])
pocket20 = body.newObject("PartDesign::Pocket", "Pocket019")
pocket20.Profile = sketch22
pocket20.Length = 5
pocket20.Reversed = True

sketch23 = body.newObject("Sketcher::SketchObject", "Sketch022")
sketch23.AttachmentSupport = (doc.getObject("XZ_Plane"), [""])
sketch23.MapMode = "FlatFace"
sketch23.AttachmentOffset = App.Placement(Vector(0, 0, 30), App.Rotation())
sketch23.addGeometry(Part.Circle(Vector(50, 115, 0), Vector(0, 0, 1), 2.3), False)
sketch23.addConstraint([
    Sketcher.Constraint("Diameter", 0, Q("4.6 mm")),
    Sketcher.Constraint("DistanceX", -1, 1, 0, 3, Q("50 mm")),
    Sketcher.Constraint("DistanceY", -1, 1, 0, 3, Q("115 mm")),
])
pocket21 = body.newObject("PartDesign::Pocket", "Pocket020")
pocket21.Profile = sketch23
pocket21.Type = "UpToFirst"
pocket21.Reversed = True

sketch24 = body.newObject("Sketcher::SketchObject", "Sketch023")
sketch24.AttachmentSupport = (doc.getObject("XZ_Plane"), [""])
sketch24.MapMode = "FlatFace"
sketch24.AttachmentOffset = App.Placement(Vector(0, 0, 30), App.Rotation())
sketch24.addGeometry(Part.Circle(Vector(50, 60, 0), Vector(0, 0, 1), 2.3), False)
sketch24.addConstraint([
    Sketcher.Constraint("Diameter", 0, Q("4.6 mm")),
    Sketcher.Constraint("DistanceX", -1, 1, 0, 3, Q("50 mm")),
    Sketcher.Constraint("DistanceY", -1, 1, 0, 3, Q("60 mm")),
])
pocket22 = body.newObject("PartDesign::Pocket", "Pocket021")
pocket22.Profile = sketch24
pocket22.Type = "UpToFirst"
pocket22.Reversed = True

sketch25 = body.newObject("Sketcher::SketchObject", "Sketch024")
sketch25.AttachmentSupport = (doc.getObject("XZ_Plane"), [""])
sketch25.MapMode = "FlatFace"
sketch25.AttachmentOffset = App.Placement(Vector(0, 0, 30), App.Rotation())
sketch25.addGeometry(Part.Circle(Vector(50, 5, 0), Vector(0, 0, 1), 2.3), False)
sketch25.addConstraint([
    Sketcher.Constraint("Diameter", 0, Q("4.6 mm")),
    Sketcher.Constraint("DistanceX", -1, 1, 0, 3, Q("50 mm")),
    Sketcher.Constraint("DistanceY", -1, 1, 0, 3, Q("5 mm")),
])
pocket23 = body.newObject("PartDesign::Pocket", "Pocket022")
pocket23.Profile = sketch25
pocket23.Type = "UpToFirst"
pocket23.Reversed = True

sketch26 = body.newObject("Sketcher::SketchObject", "Sketch025")
sketch26.AttachmentSupport = (doc.getObject("XZ_Plane"), [""])
sketch26.MapMode = "FlatFace"
sketch26.AttachmentOffset = App.Placement(Vector(0, 0, 30), App.Rotation())
sketch26.addGeometry([
    Part.LineSegment(Vector(-49.3, 7.2, 0), Vector(-49.3, 2.8, 0)),
    Part.ArcOfCircle(Part.Circle(Vector(-50, 5, 0), Vector(0, 0, 1), 2.3), math.radians(73), math.radians(287)),
    Part.ArcOfCircle(Part.Circle(Vector(-50, 5, 0), Vector(0, 0, 1), 2.3), math.radians(-73), math.radians(0)),
    Part.LineSegment(Vector(-49.3, 2.8, 0), Vector(-49.3, 7.2, 0)),
    Part.ArcOfCircle(Part.Circle(Vector(-50, 5, 0), Vector(0, 0, 1), 2.3), math.radians(0), math.radians(73)),
    Part.LineSegment(Vector(-49.3, 62.2, 0), Vector(-49.3, 57.8, 0)),
    Part.ArcOfCircle(Part.Circle(Vector(-50, 60, 0), Vector(0, 0, 1), 2.3), math.radians(73), math.radians(287)),
    Part.ArcOfCircle(Part.Circle(Vector(-50, 60, 0), Vector(0, 0, 1), 2.3), math.radians(-73), math.radians(0)),
    Part.LineSegment(Vector(-49.3, 57.8, 0), Vector(-49.3, 62.2, 0)),
    Part.ArcOfCircle(Part.Circle(Vector(-50, 60, 0), Vector(0, 0, 1), 2.3), math.radians(0), math.radians(73)),
    Part.LineSegment(Vector(-49.3, 117.2, 0), Vector(-49.3, 112.8, 0)),
    Part.ArcOfCircle(Part.Circle(Vector(-50, 115, 0), Vector(0, 0, 1), 2.3), math.radians(73), math.radians(287)),
    Part.ArcOfCircle(Part.Circle(Vector(-50, 115, 0), Vector(0, 0, 1), 2.3), math.radians(-73), math.radians(0)),
    Part.LineSegment(Vector(-49.3, 112.8, 0), Vector(-49.3, 117.2, 0)),
    Part.ArcOfCircle(Part.Circle(Vector(-50, 115, 0), Vector(0, 0, 1), 2.3), math.radians(0), math.radians(73)),
    Part.Circle(Vector(50, 115, 0), Vector(0, 0, 1), 2.3),
    Part.Circle(Vector(50, 60, 0), Vector(0, 0, 1), 2.3),
    Part.Circle(Vector(50, 5, 0), Vector(0, 0, 1), 2.3),
], False)
sketch26.addConstraint([
    Sketcher.Constraint("Coincident", 0, 1, 1, 1),
    Sketcher.Constraint("Coincident", 1, 2, 0, 2),
    Sketcher.Constraint("Coincident", 2, 1, 3, 1),
    Sketcher.Constraint("Coincident", 3, 2, 4, 2),
    Sketcher.Constraint("Tangent", 4, 1, 2, 2),
    Sketcher.Constraint("Coincident", 5, 1, 6, 1),
    Sketcher.Constraint("Coincident", 6, 2, 5, 2),
    Sketcher.Constraint("Coincident", 7, 1, 8, 1),
    Sketcher.Constraint("Coincident", 8, 2, 9, 2),
    Sketcher.Constraint("Tangent", 9, 1, 7, 2),
    Sketcher.Constraint("Coincident", 10, 1, 11, 1),
    Sketcher.Constraint("Coincident", 11, 2, 10, 2),
    Sketcher.Constraint("Coincident", 12, 1, 13, 1),
    Sketcher.Constraint("Coincident", 13, 2, 14, 2),
    Sketcher.Constraint("Tangent", 14, 1, 12, 2),
    Sketcher.Constraint("Vertical", 0),
    Sketcher.Constraint("Vertical", 3),
    Sketcher.Constraint("Vertical", 5),
    Sketcher.Constraint("Vertical", 8),
    Sketcher.Constraint("Vertical", 10),
    Sketcher.Constraint("Vertical", 13),
    Sketcher.Constraint("Coincident", 2, 3, 1, 3),
    Sketcher.Constraint("Coincident", 7, 3, 6, 3),
    Sketcher.Constraint("Coincident", 12, 3, 11, 3),
    Sketcher.Constraint("Coincident", 2, 1, 1, 2),
    Sketcher.Constraint("Coincident", 7, 1, 6, 2),
    Sketcher.Constraint("Coincident", 12, 1, 11, 2),
    Sketcher.Constraint("Equal", 2, 4),
    Sketcher.Constraint("Equal", 4, 6),
    Sketcher.Constraint("Equal", 7, 9),
    Sketcher.Constraint("Equal", 9, 11),
    Sketcher.Constraint("Equal", 12, 14),
    Sketcher.Constraint("Equal", 14, 15),
    Sketcher.Constraint("Equal", 15, 16),
    Sketcher.Constraint("Equal", 16, 17),
    Sketcher.Constraint("Symmetric", 11, 3, 15, 3, -2),
    Sketcher.Constraint("Symmetric", 6, 3, 16, 3, -2),
    Sketcher.Constraint("Symmetric", 1, 3, 17, 3, -2),
    Sketcher.Constraint("Horizontal", 17, 3, 4, 1),
    Sketcher.Constraint("Horizontal", 16, 3, 9, 1),
    Sketcher.Constraint("Horizontal", 15, 3, 14, 1),
    Sketcher.Constraint("Vertical", 4, 3, 6, 3),
    Sketcher.Constraint("Vertical", 9, 3, 11, 3),
    Sketcher.Constraint("Vertical", 3, 2, 5, 1),
    Sketcher.Constraint("Vertical", 8, 2, 10, 1),
    Sketcher.Constraint("Diameter", 15, Q("4.6 mm")),
    Sketcher.Constraint("DistanceX", 1, 3, -1, 1, Q("50 mm")),
    Sketcher.Constraint("DistanceY", -1, 1, 1, 3, Q("5 mm")),
    Sketcher.Constraint("DistanceY", -1, 1, 6, 3, Q("60 mm")),
    Sketcher.Constraint("DistanceY", -1, 1, 11, 3, Q("115 mm")),
    Sketcher.Constraint("DistanceY", 0, 2, 0, 1, Q("4.404424 mm")),
])
pocket24 = body.newObject("PartDesign::Pocket", "Pocket023")
pocket24.Profile = sketch26
pocket24.Length = 13
doc.recompute()

fillet2 = body.newObject("PartDesign::Fillet", "Fillet001")
fillet2.Base = (pocket24, edges_at(pocket24, [(40, 0, 60), (-40, 0, 60)]))
fillet2.Radius = 3

doc.recompute()
